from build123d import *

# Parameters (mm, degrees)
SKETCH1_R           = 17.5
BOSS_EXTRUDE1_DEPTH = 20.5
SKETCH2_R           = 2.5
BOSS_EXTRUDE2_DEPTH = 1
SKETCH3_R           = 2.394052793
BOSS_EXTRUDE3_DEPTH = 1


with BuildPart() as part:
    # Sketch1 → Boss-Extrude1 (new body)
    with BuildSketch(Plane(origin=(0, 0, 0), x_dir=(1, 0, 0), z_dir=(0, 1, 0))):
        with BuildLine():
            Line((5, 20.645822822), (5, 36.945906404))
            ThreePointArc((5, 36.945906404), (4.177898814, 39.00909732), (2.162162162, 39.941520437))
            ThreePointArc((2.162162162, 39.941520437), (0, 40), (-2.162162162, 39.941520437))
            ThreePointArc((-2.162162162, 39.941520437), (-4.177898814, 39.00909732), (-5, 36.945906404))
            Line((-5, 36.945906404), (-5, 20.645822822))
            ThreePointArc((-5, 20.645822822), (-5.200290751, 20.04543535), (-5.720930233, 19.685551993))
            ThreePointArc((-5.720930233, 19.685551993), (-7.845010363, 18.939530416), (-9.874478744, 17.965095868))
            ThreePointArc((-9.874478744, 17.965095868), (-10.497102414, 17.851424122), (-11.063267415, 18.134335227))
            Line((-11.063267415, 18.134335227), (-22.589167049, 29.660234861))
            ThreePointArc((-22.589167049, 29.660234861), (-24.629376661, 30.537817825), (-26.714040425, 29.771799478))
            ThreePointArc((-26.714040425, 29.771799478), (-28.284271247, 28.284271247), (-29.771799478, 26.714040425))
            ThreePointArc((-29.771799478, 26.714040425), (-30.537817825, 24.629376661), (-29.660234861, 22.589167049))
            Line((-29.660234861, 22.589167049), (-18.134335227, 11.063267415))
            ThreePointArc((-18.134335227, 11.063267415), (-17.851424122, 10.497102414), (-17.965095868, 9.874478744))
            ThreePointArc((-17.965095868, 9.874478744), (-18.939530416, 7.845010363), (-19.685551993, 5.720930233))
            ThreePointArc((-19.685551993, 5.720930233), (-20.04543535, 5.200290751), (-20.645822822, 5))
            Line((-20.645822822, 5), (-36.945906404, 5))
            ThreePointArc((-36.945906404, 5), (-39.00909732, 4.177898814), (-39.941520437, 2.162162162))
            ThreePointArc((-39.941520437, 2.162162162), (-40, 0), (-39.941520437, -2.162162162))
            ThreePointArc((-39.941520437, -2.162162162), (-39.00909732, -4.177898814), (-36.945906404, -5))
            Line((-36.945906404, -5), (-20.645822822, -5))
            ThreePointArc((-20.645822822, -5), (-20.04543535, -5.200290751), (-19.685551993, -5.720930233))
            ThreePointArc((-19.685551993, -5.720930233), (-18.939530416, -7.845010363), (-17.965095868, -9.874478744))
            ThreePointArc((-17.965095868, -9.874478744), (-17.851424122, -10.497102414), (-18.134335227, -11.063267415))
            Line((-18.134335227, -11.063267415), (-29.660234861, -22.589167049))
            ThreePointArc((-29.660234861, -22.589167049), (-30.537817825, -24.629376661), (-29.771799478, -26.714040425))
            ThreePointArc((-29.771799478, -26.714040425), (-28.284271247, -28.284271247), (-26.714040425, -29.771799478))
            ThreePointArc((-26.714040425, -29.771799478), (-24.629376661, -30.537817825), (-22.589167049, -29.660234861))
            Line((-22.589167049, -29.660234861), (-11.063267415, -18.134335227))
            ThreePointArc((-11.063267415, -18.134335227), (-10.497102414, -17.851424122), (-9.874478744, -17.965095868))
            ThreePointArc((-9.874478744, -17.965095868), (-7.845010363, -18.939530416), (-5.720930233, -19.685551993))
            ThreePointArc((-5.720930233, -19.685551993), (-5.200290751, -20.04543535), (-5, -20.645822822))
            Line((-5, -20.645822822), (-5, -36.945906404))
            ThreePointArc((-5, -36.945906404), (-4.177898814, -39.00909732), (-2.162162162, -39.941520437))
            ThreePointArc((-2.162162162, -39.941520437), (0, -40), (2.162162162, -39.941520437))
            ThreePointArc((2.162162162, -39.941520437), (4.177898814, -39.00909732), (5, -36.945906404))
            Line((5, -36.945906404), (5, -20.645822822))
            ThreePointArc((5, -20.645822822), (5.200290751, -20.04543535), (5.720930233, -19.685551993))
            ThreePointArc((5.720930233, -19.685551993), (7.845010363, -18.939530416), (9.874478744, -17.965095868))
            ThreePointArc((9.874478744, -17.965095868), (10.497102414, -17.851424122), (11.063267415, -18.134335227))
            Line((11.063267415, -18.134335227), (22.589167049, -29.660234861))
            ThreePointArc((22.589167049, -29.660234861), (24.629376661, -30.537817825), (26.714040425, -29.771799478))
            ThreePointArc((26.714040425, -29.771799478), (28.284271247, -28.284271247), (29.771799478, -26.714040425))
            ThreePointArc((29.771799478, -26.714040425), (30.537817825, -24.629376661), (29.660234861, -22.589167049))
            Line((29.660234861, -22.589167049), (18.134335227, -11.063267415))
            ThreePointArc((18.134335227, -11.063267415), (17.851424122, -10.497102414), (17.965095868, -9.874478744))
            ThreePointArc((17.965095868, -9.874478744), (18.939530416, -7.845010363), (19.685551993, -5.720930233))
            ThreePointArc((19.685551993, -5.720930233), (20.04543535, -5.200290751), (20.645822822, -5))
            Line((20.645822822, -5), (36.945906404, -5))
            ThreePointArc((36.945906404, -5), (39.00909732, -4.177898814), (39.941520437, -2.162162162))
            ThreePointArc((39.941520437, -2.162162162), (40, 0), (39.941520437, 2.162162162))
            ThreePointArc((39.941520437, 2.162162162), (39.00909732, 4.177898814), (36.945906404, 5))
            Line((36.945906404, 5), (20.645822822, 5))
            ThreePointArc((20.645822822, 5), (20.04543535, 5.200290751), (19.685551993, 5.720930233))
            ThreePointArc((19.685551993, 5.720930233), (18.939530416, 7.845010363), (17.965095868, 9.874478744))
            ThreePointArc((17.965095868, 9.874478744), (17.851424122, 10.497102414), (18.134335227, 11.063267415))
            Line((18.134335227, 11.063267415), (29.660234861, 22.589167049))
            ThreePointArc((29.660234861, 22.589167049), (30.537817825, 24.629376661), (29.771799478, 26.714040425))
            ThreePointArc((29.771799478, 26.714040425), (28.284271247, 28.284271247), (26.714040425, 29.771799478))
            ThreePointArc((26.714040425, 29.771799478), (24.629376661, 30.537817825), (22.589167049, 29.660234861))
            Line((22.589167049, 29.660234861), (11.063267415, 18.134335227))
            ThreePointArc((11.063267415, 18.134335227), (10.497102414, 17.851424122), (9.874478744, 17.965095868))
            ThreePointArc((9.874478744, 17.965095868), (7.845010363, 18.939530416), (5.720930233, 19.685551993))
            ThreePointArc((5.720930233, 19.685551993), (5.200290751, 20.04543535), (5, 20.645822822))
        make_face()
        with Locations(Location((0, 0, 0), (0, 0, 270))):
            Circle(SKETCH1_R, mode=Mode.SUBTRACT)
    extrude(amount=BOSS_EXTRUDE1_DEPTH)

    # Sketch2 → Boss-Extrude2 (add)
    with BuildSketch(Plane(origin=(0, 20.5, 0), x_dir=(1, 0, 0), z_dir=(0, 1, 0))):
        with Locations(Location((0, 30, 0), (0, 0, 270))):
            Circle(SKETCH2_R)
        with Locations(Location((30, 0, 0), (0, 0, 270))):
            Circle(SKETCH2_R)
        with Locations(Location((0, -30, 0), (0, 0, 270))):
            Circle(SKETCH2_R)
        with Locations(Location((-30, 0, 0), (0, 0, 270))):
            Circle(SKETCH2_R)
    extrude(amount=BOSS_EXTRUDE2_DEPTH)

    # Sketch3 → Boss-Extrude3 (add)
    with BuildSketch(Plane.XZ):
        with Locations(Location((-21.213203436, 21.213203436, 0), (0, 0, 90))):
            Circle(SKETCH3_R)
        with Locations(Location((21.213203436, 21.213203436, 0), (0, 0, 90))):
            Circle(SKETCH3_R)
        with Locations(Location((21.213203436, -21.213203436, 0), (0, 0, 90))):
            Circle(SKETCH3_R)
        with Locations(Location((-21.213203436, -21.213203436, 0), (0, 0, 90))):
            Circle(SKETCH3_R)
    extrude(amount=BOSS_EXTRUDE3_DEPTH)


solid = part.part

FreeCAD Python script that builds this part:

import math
import FreeCAD as App
import Part
import Sketcher

doc = App.newDocument("Part")
body = doc.addObject("PartDesign::Body", "Body")

# Sketch on XZ plane
sketch1 = body.newObject("Sketcher::SketchObject", "Sketch")
sketch1.AttachmentSupport = (doc.getObject("XZ_Plane"), [""])
sketch1.MapMode = "FlatFace"
sketch1.addGeometry([
    Part.LineSegment(App.Vector(5, -20.645823, 0), App.Vector(5, -36.945906, 0)),  # 0
    Part.ArcOfCircle(Part.Circle(App.Vector(2, -36.945906, 0), App.Vector(0, 0, 1), 3), math.radians(-86.901421), math.radians(0)),  # 1
    Part.ArcOfCircle(Part.Circle(App.Vector(0, 0, 0), App.Vector(0, 0, 1), 40), math.radians(-93.098579), math.radians(-86.901421)),  # 2
    Part.ArcOfCircle(Part.Circle(App.Vector(-2, -36.945906, 0), App.Vector(0, 0, 1), 3), math.radians(180), math.radians(266.901421)),  # 3
    Part.LineSegment(App.Vector(-5, -36.945906, 0), App.Vector(-5, -20.645823, 0)),  # 4
    Part.ArcOfCircle(Part.Circle(App.Vector(-6, -20.645823, 0), App.Vector(0, 0, 1), 1), math.radians(0), math.radians(73.795307)),  # 5
    Part.ArcOfCircle(Part.Circle(App.Vector(0, 0, 0), App.Vector(0, 0, 1), 20.5), math.radians(-118.795307), math.radians(-106.204693)),  # 6
    Part.ArcOfCircle(Part.Circle(App.Vector(-10.356161, -18.841442, 0), App.Vector(0, 0, 1), 1), math.radians(61.204693), math.radians(135)),  # 7
    Part.LineSegment(App.Vector(-11.063267, -18.134335, 0), App.Vector(-22.589167, -29.660235, 0)),  # 8
    Part.ArcOfCircle(Part.Circle(App.Vector(-24.710487, -27.538915, 0), App.Vector(0, 0, 1), 3), math.radians(-131.901421), math.radians(-45)),  # 9
    Part.ArcOfCircle(Part.Circle(App.Vector(0, 0, 0), App.Vector(0, 0, 1), 40), math.radians(-138.098579), math.radians(-131.901421)),  # 10
    Part.ArcOfCircle(Part.Circle(App.Vector(-27.538915, -24.710487, 0), App.Vector(0, 0, 1), 3), math.radians(135), math.radians(221.901421)),  # 11
    Part.LineSegment(App.Vector(-29.660235, -22.589167, 0), App.Vector(-18.134335, -11.063267, 0)),  # 12
    Part.ArcOfCircle(Part.Circle(App.Vector(-18.841442, -10.356161, 0), App.Vector(0, 0, 1), 1), math.radians(-45), math.radians(28.795307)),  # 13
    Part.ArcOfCircle(Part.Circle(App.Vector(0, 0, 0), App.Vector(0, 0, 1), 20.5), math.radians(-163.795307), math.radians(-151.204693)),  # 14
    Part.ArcOfCircle(Part.Circle(App.Vector(-20.645823, -6, 0), App.Vector(0, 0, 1), 1), math.radians(16.204693), math.radians(90)),  # 15
    Part.LineSegment(App.Vector(-20.645823, -5, 0), App.Vector(-36.945906, -5, 0)),  # 16
    Part.ArcOfCircle(Part.Circle(App.Vector(-36.945906, -2, 0), App.Vector(0, 0, 1), 3), math.radians(-176.901421), math.radians(-90)),  # 17
    Part.ArcOfCircle(Part.Circle(App.Vector(0, 0, 0), App.Vector(0, 0, 1), 40), math.radians(176.901421), math.radians(183.098579)),  # 18
    Part.ArcOfCircle(Part.Circle(App.Vector(-36.945906, 2, 0), App.Vector(0, 0, 1), 3), math.radians(90), math.radians(176.901421)),  # 19
    Part.LineSegment(App.Vector(-36.945906, 5, 0), App.Vector(-20.645823, 5, 0)),  # 20
    Part.ArcOfCircle(Part.Circle(App.Vector(-20.645823, 6, 0), App.Vector(0, 0, 1), 1), math.radians(-90), math.radians(-16.204693)),  # 21
    Part.ArcOfCircle(Part.Circle(App.Vector(0, 0, 0), App.Vector(0, 0, 1), 20.5), math.radians(151.204693), math.radians(163.795307)),  # 22
    Part.ArcOfCircle(Part.Circle(App.Vector(-18.841442, 10.356161, 0), App.Vector(0, 0, 1), 1), math.radians(-28.795307), math.radians(45)),  # 23
    Part.LineSegment(App.Vector(-18.134335, 11.063267, 0), App.Vector(-29.660235, 22.589167, 0)),  # 24
    Part.ArcOfCircle(Part.Circle(App.Vector(-27.538915, 24.710487, 0), App.Vector(0, 0, 1), 3), math.radians(138.098579), math.radians(225)),  # 25
    Part.ArcOfCircle(Part.Circle(App.Vector(0, 0, 0), App.Vector(0, 0, 1), 40), math.radians(131.901421), math.radians(138.098579)),  # 26
    Part.ArcOfCircle(Part.Circle(App.Vector(-24.710487, 27.538915, 0), App.Vector(0, 0, 1), 3), math.radians(45), math.radians(131.901421)),  # 27
    Part.LineSegment(App.Vector(-22.589167, 29.660235, 0), App.Vector(-11.063267, 18.134335, 0)),  # 28
    Part.ArcOfCircle(Part.Circle(App.Vector(-10.356161, 18.841442, 0), App.Vector(0, 0, 1), 1), math.radians(-135), math.radians(-61.204693)),  # 29
    Part.ArcOfCircle(Part.Circle(App.Vector(0, 0, 0), App.Vector(0, 0, 1), 20.5), math.radians(106.204693), math.radians(118.795307)),  # 30
    Part.ArcOfCircle(Part.Circle(App.Vector(-6, 20.645823, 0), App.Vector(0, 0, 1), 1), math.radians(-73.795307), math.radians(0)),  # 31
    Part.LineSegment(App.Vector(-5, 20.645823, 0), App.Vector(-5, 36.945906, 0)),  # 32
    Part.ArcOfCircle(Part.Circle(App.Vector(-2, 36.945906, 0), App.Vector(0, 0, 1), 3), math.radians(93.098579), math.radians(180)),  # 33
    Part.ArcOfCircle(Part.Circle(App.Vector(0, 0, 0), App.Vector(0, 0, 1), 40), math.radians(86.901421), math.radians(93.098579)),  # 34
    Part.ArcOfCircle(Part.Circle(App.Vector(2, 36.945906, 0), App.Vector(0, 0, 1), 3), math.radians(0), math.radians(86.901421)),  # 35
    Part.LineSegment(App.Vector(5, 36.945906, 0), App.Vector(5, 20.645823, 0)),  # 36
    Part.ArcOfCircle(Part.Circle(App.Vector(6, 20.645823, 0), App.Vector(0, 0, 1), 1), math.radians(-180), math.radians(-106.204693)),  # 37
    Part.ArcOfCircle(Part.Circle(App.Vector(0, 0, 0), App.Vector(0, 0, 1), 20.5), math.radians(61.204693), math.radians(73.795307)),  # 38
    Part.ArcOfCircle(Part.Circle(App.Vector(10.356161, 18.841442, 0), App.Vector(0, 0, 1), 1), math.radians(-118.795307), math.radians(-45)),  # 39
    Part.LineSegment(App.Vector(11.063267, 18.134335, 0), App.Vector(22.589167, 29.660235, 0)),  # 40
    Part.ArcOfCircle(Part.Circle(App.Vector(24.710487, 27.538915, 0), App.Vector(0, 0, 1), 3), math.radians(48.098579), math.radians(135)),  # 41
    Part.ArcOfCircle(Part.Circle(App.Vector(0, 0, 0), App.Vector(0, 0, 1), 40), math.radians(41.901421), math.radians(48.098579)),  # 42
    Part.ArcOfCircle(Part.Circle(App.Vector(27.538915, 24.710487, 0), App.Vector(0, 0, 1), 3), math.radians(-45), math.radians(41.901421)),  # 43
    Part.LineSegment(App.Vector(29.660235, 22.589167, 0), App.Vector(18.134335, 11.063267, 0)),  # 44
    Part.ArcOfCircle(Part.Circle(App.Vector(18.841442, 10.356161, 0), App.Vector(0, 0, 1), 1), math.radians(135), math.radians(208.795307)),  # 45
    Part.ArcOfCircle(Part.Circle(App.Vector(0, 0, 0), App.Vector(0, 0, 1), 20.5), math.radians(16.204693), math.radians(28.795307)),  # 46
    Part.ArcOfCircle(Part.Circle(App.Vector(20.645823, 6, 0), App.Vector(0, 0, 1), 1), math.radians(-163.795307), math.radians(-90)),  # 47
    Part.LineSegment(App.Vector(20.645823, 5, 0), App.Vector(36.945906, 5, 0)),  # 48
    Part.ArcOfCircle(Part.Circle(App.Vector(36.945906, 2, 0), App.Vector(0, 0, 1), 3), math.radians(3.098579), math.radians(90)),  # 49
    Part.ArcOfCircle(Part.Circle(App.Vector(0, 0, 0), App.Vector(0, 0, 1), 40), math.radians(-3.098579), math.radians(3.098579)),  # 50
    Part.ArcOfCircle(Part.Circle(App.Vector(36.945906, -2, 0), App.Vector(0, 0, 1), 3), math.radians(-90), math.radians(-3.098579)),  # 51
    Part.LineSegment(App.Vector(36.945906, -5, 0), App.Vector(20.645823, -5, 0)),  # 52
    Part.ArcOfCircle(Part.Circle(App.Vector(20.645823, -6, 0), App.Vector(0, 0, 1), 1), math.radians(90), math.radians(163.795307)),  # 53
    Part.ArcOfCircle(Part.Circle(App.Vector(0, 0, 0), App.Vector(0, 0, 1), 20.5), math.radians(-28.795307), math.radians(-16.204693)),  # 54
    Part.ArcOfCircle(Part.Circle(App.Vector(18.841442, -10.356161, 0), App.Vector(0, 0, 1), 1), math.radians(151.204693), math.radians(225)),  # 55
    Part.LineSegment(App.Vector(18.134335, -11.063267, 0), App.Vector(29.660235, -22.589167, 0)),  # 56
    Part.ArcOfCircle(Part.Circle(App.Vector(27.538915, -24.710487, 0), App.Vector(0, 0, 1), 3), math.radians(-41.901421), math.radians(45)),  # 57
    Part.ArcOfCircle(Part.Circle(App.Vector(0, 0, 0), App.Vector(0, 0, 1), 40), math.radians(-48.098579), math.radians(-41.901421)),  # 58
    Part.ArcOfCircle(Part.Circle(App.Vector(24.710487, -27.538915, 0), App.Vector(0, 0, 1), 3), math.radians(-135), math.radians(-48.098579)),  # 59
    Part.LineSegment(App.Vector(22.589167, -29.660235, 0), App.Vector(11.063267, -18.134335, 0)),  # 60
    Part.ArcOfCircle(Part.Circle(App.Vector(10.356161, -18.841442, 0), App.Vector(0, 0, 1), 1), math.radians(45), math.radians(118.795307)),  # 61
    Part.ArcOfCircle(Part.Circle(App.Vector(0, 0, 0), App.Vector(0, 0, 1), 20.5), math.radians(-73.795307), math.radians(-61.204693)),  # 62
    Part.ArcOfCircle(Part.Circle(App.Vector(6, -20.645823, 0), App.Vector(0, 0, 1), 1), math.radians(106.204693), math.radians(180)),  # 63
    Part.Circle(App.Vector(0, 0, 0), App.Vector(0, 0, 1), 17.5),  # 64
], False)
sketch1.addConstraint([
    Sketcher.Constraint("Tangent", 0, 2, 1, 2),
    Sketcher.Constraint("Tangent", 1, 1, 2, 2),
    Sketcher.Constraint("Tangent", 2, 1, 3, 2),
    Sketcher.Constraint("Tangent", 3, 1, 4, 1),
    Sketcher.Constraint("Tangent", 4, 2, 5, 1),
    Sketcher.Constraint("Tangent", 5, 2, 6, 2),
    Sketcher.Constraint("Tangent", 6, 1, 7, 1),
    Sketcher.Constraint("Tangent", 7, 2, 8, 1),
    Sketcher.Constraint("Tangent", 8, 2, 9, 2),
    Sketcher.Constraint("Tangent", 9, 1, 10, 2),
    Sketcher.Constraint("Tangent", 10, 1, 11, 2),
    Sketcher.Constraint("Tangent", 11, 1, 12, 1),
    Sketcher.Constraint("Tangent", 12, 2, 13, 1),
    Sketcher.Constraint("Tangent", 13, 2, 14, 2),
    Sketcher.Constraint("Tangent", 14, 1, 15, 1),
    Sketcher.Constraint("Tangent", 15, 2, 16, 1),
    Sketcher.Constraint("Tangent", 16, 2, 17, 2),
    Sketcher.Constraint("Tangent", 17, 1, 18, 2),
    Sketcher.Constraint("Tangent", 18, 1, 19, 2),
    Sketcher.Constraint("Tangent", 19, 1, 20, 1),
    Sketcher.Constraint("Tangent", 20, 2, 21, 1),
    Sketcher.Constraint("Tangent", 21, 2, 22, 2),
    Sketcher.Constraint("Tangent", 22, 1, 23, 1),
    Sketcher.Constraint("Tangent", 23, 2, 24, 1),
    Sketcher.Constraint("Tangent", 24, 2, 25, 2),
    Sketcher.Constraint("Tangent", 25, 1, 26, 2),
    Sketcher.Constraint("Tangent", 26, 1, 27, 2),
    Sketcher.Constraint("Tangent", 27, 1, 28, 1),
    Sketcher.Constraint("Tangent", 28, 2, 29, 1),
    Sketcher.Constraint("Tangent", 29, 2, 30, 2),
    Sketcher.Constraint("Tangent", 30, 1, 31, 1),
    Sketcher.Constraint("Tangent", 31, 2, 32, 1),
    Sketcher.Constraint("Tangent", 32, 2, 33, 2),
    Sketcher.Constraint("Tangent", 33, 1, 34, 2),
    Sketcher.Constraint("Tangent", 34, 1, 35, 2),
    Sketcher.Constraint("Tangent", 35, 1, 36, 1),
    Sketcher.Constraint("Tangent", 36, 2, 37, 1),
    Sketcher.Constraint("Tangent", 37, 2, 38, 2),
    Sketcher.Constraint("Tangent", 38, 1, 39, 1),
    Sketcher.Constraint("Tangent", 39, 2, 40, 1),
    Sketcher.Constraint("Tangent", 40, 2, 41, 2),
    Sketcher.Constraint("Tangent", 41, 1, 42, 2),
    Sketcher.Constraint("Tangent", 42, 1, 43, 2),
    Sketcher.Constraint("Tangent", 43, 1, 44, 1),
    Sketcher.Constraint("Tangent", 44, 2, 45, 1),
    Sketcher.Constraint("Tangent", 45, 2, 46, 2),
    Sketcher.Constraint("Tangent", 46, 1, 47, 1),
    Sketcher.Constraint("Tangent", 47, 2, 48, 1),
    Sketcher.Constraint("Tangent", 48, 2, 49, 2),
    Sketcher.Constraint("Tangent", 49, 1, 50, 2),
    Sketcher.Constraint("Tangent", 50, 1, 51, 2),
    Sketcher.Constraint("Tangent", 51, 1, 52, 1),
    Sketcher.Constraint("Tangent", 52, 2, 53, 1),
    Sketcher.Constraint("Tangent", 53, 2, 54, 2),
    Sketcher.Constraint("Tangent", 54, 1, 55, 1),
    Sketcher.Constraint("Tangent", 55, 2, 56, 1),
    Sketcher.Constraint("Tangent", 56, 2, 57, 2),
    Sketcher.Constraint("Tangent", 57, 1, 58, 2),
    Sketcher.Constraint("Tangent", 58, 1, 59, 2),
    Sketcher.Constraint("Tangent", 59, 1, 60, 1),
    Sketcher.Constraint("Tangent", 60, 2, 61, 1),
    Sketcher.Constraint("Tangent", 61, 2, 62, 2),
    Sketcher.Constraint("Tangent", 62, 1, 63, 1),
    Sketcher.Constraint("Tangent", 63, 2, 0, 1),
    Sketcher.Constraint("Vertical", 0),
    Sketcher.Constraint("Vertical", 4),
    Sketcher.Constraint("Horizontal", 16),
    Sketcher.Constraint("Horizontal", 20),
    Sketcher.Constraint("Vertical", 32),
    Sketcher.Constraint("Vertical", 36),
    Sketcher.Constraint("Horizontal", 48),
    Sketcher.Constraint("Horizontal", 52),
    Sketcher.Constraint("Coincident", 2, 3, -1, 1),
    Sketcher.Constraint("Coincident", 6, 3, -1, 1),
    Sketcher.Constraint("Coincident", 10, 3, -1, 1),
    Sketcher.Constraint("Coincident", 14, 3, -1, 1),
    Sketcher.Constraint("Coincident", 18, 3, -1, 1),
    Sketcher.Constraint("Coincident", 22, 3, -1, 1),
    Sketcher.Constraint("Coincident", 26, 3, -1, 1),
    Sketcher.Constraint("Coincident", 30, 3, -1, 1),
    Sketcher.Constraint("Coincident", 34, 3, -1, 1),
    Sketcher.Constraint("Coincident", 38, 3, -1, 1),
    Sketcher.Constraint("Coincident", 42, 3, -1, 1),
    Sketcher.Constraint("Coincident", 46, 3, -1, 1),
    Sketcher.Constraint("Coincident", 50, 3, -1, 1),
    Sketcher.Constraint("Coincident", 54, 3, -1, 1),
    Sketcher.Constraint("Coincident", 58, 3, -1, 1),
    Sketcher.Constraint("Coincident", 62, 3, -1, 1),
    Sketcher.Constraint("Coincident", 64, 3, -1, 1),
    Sketcher.Constraint("Equal", 1, 3),
    Sketcher.Constraint("Equal", 5, 7),
    Sketcher.Constraint("Equal", 3, 9),
    Sketcher.Constraint("Equal", 2, 10),
    Sketcher.Constraint("Equal", 9, 11),
    Sketcher.Constraint("Equal", 7, 13),
    Sketcher.Constraint("Equal", 6, 14),
    Sketcher.Constraint("Equal", 13, 15),
    Sketcher.Constraint("Equal", 11, 17),
    Sketcher.Constraint("Equal", 10, 18),
    Sketcher.Constraint("Equal", 17, 19),
    Sketcher.Constraint("Equal", 15, 21),
    Sketcher.Constraint("Equal", 14, 22),
    Sketcher.Constraint("Equal", 21, 23),
    Sketcher.Constraint("Equal", 19, 25),
    Sketcher.Constraint("Equal", 18, 26),
    Sketcher.Constraint("Equal", 25, 27),
    Sketcher.Constraint("Equal", 23, 29),
    Sketcher.Constraint("Equal", 22, 30),
    Sketcher.Constraint("Equal", 29, 31),
    Sketcher.Constraint("Equal", 27, 33),
    Sketcher.Constraint("Equal", 26, 34),
    Sketcher.Constraint("Equal", 33, 35),
    Sketcher.Constraint("Equal", 31, 37),
    Sketcher.Constraint("Equal", 30, 38),
    Sketcher.Constraint("Equal", 37, 39),
    Sketcher.Constraint("Equal", 35, 41),
    Sketcher.Constraint("Equal", 34, 42),
    Sketcher.Constraint("Equal", 41, 43),
    Sketcher.Constraint("Equal", 39, 45),
    Sketcher.Constraint("Equal", 38, 46),
    Sketcher.Constraint("Equal", 45, 47),
    Sketcher.Constraint("Equal", 43, 49),
    Sketcher.Constraint("Equal", 42, 50),
    Sketcher.Constraint("Equal", 49, 51),
    Sketcher.Constraint("Equal", 47, 53),
    Sketcher.Constraint("Equal", 46, 54),
    Sketcher.Constraint("Equal", 53, 55),
    Sketcher.Constraint("Equal", 51, 57),
    Sketcher.Constraint("Equal", 50, 58),
    Sketcher.Constraint("Equal", 57, 59),
    Sketcher.Constraint("Equal", 55, 61),
    Sketcher.Constraint("Equal", 54, 62),
    Sketcher.Constraint("Equal", 61, 63),
    Sketcher.Constraint("Symmetric", 7, 2, 39, 2, -1, 1),
    Sketcher.Constraint("Symmetric", 11, 1, 43, 1, -1, 1),
    Sketcher.Constraint("Symmetric", 23, 2, 55, 2, -1, 1),
    Sketcher.Constraint("Symmetric", 27, 1, 59, 1, -1, 1),
    Sketcher.Constraint("Symmetric", 28, 2, 39, 2, -2),
    Sketcher.Constraint("Symmetric", 24, 2, 43, 1, -2),
    Sketcher.Constraint("Parallel", 8, 12),
    Sketcher.Constraint("Perpendicular", 12, 24),
    Sketcher.Constraint("Horizontal", 1, 3, 3, 3),
    Sketcher.Constraint("Horizontal", 33, 3, 35, 3),
    Sketcher.Constraint("Horizontal", 21, 3, 47, 3),
    Sketcher.Constraint("Horizontal", 17, 3, 51, 3),
    Sketcher.Constraint("Vertical", 17, 3, 19, 3),
    Sketcher.Constraint("Vertical", 5, 3, 31, 3),
    Sketcher.Constraint("Equal", 52, 0),
    Sketcher.Constraint("Equal", 8, 12),
    Sketcher.Constraint("Diameter", 64, 35.0),
    Sketcher.Constraint("Radius", 1, 3.0),
    Sketcher.Constraint("Radius", 2, 40.0),
    Sketcher.Constraint("Radius", 5, 1.0),
    Sketcher.Constraint("Radius", 6, 20.5),
    Sketcher.Constraint("DistanceX", -1, 1, 1, 3, 2.0),
    Sketcher.Constraint("DistanceY", 9, 1, -1, 1, 29.771799),
])
pad1 = body.newObject("PartDesign::Pad", "Pad")
pad1.Profile = sketch1
pad1.Length = 20.5
pad1.Reversed = True

# Sketch on XZ plane
sketch2 = body.newObject("Sketcher::SketchObject", "Sketch001")
sketch2.AttachmentSupport = (doc.getObject("XZ_Plane"), [""])
sketch2.MapMode = "FlatFace"
sketch2.AttachmentOffset = App.Placement(App.Vector(0, 0, -20.5), App.Rotation())
sketch2.addGeometry([
    Part.Circle(App.Vector(0, -30, 0), App.Vector(0, 0, 1), 2.5),
    Part.Circle(App.Vector(30, 0, 0), App.Vector(0, 0, 1), 2.5),
    Part.Circle(App.Vector(0, 30, 0), App.Vector(0, 0, 1), 2.5),
    Part.Circle(App.Vector(-30, 0, 0), App.Vector(0, 0, 1), 2.5),
], False)
sketch2.addConstraint([
    Sketcher.Constraint("Equal", 0, 1),
    Sketcher.Constraint("Equal", 1, 2),
    Sketcher.Constraint("Equal", 2, 3),
    Sketcher.Constraint("Symmetric", 0, 3, 2, 3, -1, 1),
    Sketcher.Constraint("Symmetric", 1, 3, 3, 3, -1, 1),
    Sketcher.Constraint("PointOnObject", 0, 3, -2),
    Sketcher.Constraint("PointOnObject", 1, 3, -1),
    Sketcher.Constraint("Diameter", 0, 5.0),
    Sketcher.Constraint("DistanceY", 0, 3, -1, 1, 30.0),
    Sketcher.Constraint("DistanceX", -1, 1, 1, 3, 30.0),
])
pad2 = body.newObject("PartDesign::Pad", "Pad001")
pad2.Profile = sketch2
pad2.Length = 1
pad2.Reversed = True

# Sketch on XZ plane
sketch3 = body.newObject("Sketcher::SketchObject", "Sketch002")
sketch3.AttachmentSupport = (doc.getObject("XZ_Plane"), [""])
sketch3.MapMode = "FlatFace"
sketch3.addGeometry([
    Part.Circle(App.Vector(-21.213203, 21.213203, 0), App.Vector(0, 0, 1), 2.394053),
    Part.Circle(App.Vector(21.213203, 21.213203, 0), App.Vector(0, 0, 1), 2.394053),
    Part.Circle(App.Vector(21.213203, -21.213203, 0), App.Vector(0, 0, 1), 2.394053),
    Part.Circle(App.Vector(-21.213203, -21.213203, 0), App.Vector(0, 0, 1), 2.394053),
], False)
sketch3.addConstraint([
    Sketcher.Constraint("Equal", 0, 1),
    Sketcher.Constraint("Equal", 1, 2),
    Sketcher.Constraint("Equal", 2, 3),
    Sketcher.Constraint("Symmetric", 0, 3, 2, 3, -1, 1),
    Sketcher.Constraint("Symmetric", 1, 3, 3, 3, -1, 1),
    Sketcher.Constraint("Symmetric", 0, 3, 1, 3, -2),
    Sketcher.Constraint("Diameter", 0, 4.788106),
    Sketcher.Constraint("DistanceX", 0, 3, -1, 1, 21.213203),
    Sketcher.Constraint("DistanceY", -1, 1, 0, 3, 21.213203),
])
pad3 = body.newObject("PartDesign::Pad", "Pad002")
pad3.Profile = sketch3
pad3.Length = 1

doc.recompute()
